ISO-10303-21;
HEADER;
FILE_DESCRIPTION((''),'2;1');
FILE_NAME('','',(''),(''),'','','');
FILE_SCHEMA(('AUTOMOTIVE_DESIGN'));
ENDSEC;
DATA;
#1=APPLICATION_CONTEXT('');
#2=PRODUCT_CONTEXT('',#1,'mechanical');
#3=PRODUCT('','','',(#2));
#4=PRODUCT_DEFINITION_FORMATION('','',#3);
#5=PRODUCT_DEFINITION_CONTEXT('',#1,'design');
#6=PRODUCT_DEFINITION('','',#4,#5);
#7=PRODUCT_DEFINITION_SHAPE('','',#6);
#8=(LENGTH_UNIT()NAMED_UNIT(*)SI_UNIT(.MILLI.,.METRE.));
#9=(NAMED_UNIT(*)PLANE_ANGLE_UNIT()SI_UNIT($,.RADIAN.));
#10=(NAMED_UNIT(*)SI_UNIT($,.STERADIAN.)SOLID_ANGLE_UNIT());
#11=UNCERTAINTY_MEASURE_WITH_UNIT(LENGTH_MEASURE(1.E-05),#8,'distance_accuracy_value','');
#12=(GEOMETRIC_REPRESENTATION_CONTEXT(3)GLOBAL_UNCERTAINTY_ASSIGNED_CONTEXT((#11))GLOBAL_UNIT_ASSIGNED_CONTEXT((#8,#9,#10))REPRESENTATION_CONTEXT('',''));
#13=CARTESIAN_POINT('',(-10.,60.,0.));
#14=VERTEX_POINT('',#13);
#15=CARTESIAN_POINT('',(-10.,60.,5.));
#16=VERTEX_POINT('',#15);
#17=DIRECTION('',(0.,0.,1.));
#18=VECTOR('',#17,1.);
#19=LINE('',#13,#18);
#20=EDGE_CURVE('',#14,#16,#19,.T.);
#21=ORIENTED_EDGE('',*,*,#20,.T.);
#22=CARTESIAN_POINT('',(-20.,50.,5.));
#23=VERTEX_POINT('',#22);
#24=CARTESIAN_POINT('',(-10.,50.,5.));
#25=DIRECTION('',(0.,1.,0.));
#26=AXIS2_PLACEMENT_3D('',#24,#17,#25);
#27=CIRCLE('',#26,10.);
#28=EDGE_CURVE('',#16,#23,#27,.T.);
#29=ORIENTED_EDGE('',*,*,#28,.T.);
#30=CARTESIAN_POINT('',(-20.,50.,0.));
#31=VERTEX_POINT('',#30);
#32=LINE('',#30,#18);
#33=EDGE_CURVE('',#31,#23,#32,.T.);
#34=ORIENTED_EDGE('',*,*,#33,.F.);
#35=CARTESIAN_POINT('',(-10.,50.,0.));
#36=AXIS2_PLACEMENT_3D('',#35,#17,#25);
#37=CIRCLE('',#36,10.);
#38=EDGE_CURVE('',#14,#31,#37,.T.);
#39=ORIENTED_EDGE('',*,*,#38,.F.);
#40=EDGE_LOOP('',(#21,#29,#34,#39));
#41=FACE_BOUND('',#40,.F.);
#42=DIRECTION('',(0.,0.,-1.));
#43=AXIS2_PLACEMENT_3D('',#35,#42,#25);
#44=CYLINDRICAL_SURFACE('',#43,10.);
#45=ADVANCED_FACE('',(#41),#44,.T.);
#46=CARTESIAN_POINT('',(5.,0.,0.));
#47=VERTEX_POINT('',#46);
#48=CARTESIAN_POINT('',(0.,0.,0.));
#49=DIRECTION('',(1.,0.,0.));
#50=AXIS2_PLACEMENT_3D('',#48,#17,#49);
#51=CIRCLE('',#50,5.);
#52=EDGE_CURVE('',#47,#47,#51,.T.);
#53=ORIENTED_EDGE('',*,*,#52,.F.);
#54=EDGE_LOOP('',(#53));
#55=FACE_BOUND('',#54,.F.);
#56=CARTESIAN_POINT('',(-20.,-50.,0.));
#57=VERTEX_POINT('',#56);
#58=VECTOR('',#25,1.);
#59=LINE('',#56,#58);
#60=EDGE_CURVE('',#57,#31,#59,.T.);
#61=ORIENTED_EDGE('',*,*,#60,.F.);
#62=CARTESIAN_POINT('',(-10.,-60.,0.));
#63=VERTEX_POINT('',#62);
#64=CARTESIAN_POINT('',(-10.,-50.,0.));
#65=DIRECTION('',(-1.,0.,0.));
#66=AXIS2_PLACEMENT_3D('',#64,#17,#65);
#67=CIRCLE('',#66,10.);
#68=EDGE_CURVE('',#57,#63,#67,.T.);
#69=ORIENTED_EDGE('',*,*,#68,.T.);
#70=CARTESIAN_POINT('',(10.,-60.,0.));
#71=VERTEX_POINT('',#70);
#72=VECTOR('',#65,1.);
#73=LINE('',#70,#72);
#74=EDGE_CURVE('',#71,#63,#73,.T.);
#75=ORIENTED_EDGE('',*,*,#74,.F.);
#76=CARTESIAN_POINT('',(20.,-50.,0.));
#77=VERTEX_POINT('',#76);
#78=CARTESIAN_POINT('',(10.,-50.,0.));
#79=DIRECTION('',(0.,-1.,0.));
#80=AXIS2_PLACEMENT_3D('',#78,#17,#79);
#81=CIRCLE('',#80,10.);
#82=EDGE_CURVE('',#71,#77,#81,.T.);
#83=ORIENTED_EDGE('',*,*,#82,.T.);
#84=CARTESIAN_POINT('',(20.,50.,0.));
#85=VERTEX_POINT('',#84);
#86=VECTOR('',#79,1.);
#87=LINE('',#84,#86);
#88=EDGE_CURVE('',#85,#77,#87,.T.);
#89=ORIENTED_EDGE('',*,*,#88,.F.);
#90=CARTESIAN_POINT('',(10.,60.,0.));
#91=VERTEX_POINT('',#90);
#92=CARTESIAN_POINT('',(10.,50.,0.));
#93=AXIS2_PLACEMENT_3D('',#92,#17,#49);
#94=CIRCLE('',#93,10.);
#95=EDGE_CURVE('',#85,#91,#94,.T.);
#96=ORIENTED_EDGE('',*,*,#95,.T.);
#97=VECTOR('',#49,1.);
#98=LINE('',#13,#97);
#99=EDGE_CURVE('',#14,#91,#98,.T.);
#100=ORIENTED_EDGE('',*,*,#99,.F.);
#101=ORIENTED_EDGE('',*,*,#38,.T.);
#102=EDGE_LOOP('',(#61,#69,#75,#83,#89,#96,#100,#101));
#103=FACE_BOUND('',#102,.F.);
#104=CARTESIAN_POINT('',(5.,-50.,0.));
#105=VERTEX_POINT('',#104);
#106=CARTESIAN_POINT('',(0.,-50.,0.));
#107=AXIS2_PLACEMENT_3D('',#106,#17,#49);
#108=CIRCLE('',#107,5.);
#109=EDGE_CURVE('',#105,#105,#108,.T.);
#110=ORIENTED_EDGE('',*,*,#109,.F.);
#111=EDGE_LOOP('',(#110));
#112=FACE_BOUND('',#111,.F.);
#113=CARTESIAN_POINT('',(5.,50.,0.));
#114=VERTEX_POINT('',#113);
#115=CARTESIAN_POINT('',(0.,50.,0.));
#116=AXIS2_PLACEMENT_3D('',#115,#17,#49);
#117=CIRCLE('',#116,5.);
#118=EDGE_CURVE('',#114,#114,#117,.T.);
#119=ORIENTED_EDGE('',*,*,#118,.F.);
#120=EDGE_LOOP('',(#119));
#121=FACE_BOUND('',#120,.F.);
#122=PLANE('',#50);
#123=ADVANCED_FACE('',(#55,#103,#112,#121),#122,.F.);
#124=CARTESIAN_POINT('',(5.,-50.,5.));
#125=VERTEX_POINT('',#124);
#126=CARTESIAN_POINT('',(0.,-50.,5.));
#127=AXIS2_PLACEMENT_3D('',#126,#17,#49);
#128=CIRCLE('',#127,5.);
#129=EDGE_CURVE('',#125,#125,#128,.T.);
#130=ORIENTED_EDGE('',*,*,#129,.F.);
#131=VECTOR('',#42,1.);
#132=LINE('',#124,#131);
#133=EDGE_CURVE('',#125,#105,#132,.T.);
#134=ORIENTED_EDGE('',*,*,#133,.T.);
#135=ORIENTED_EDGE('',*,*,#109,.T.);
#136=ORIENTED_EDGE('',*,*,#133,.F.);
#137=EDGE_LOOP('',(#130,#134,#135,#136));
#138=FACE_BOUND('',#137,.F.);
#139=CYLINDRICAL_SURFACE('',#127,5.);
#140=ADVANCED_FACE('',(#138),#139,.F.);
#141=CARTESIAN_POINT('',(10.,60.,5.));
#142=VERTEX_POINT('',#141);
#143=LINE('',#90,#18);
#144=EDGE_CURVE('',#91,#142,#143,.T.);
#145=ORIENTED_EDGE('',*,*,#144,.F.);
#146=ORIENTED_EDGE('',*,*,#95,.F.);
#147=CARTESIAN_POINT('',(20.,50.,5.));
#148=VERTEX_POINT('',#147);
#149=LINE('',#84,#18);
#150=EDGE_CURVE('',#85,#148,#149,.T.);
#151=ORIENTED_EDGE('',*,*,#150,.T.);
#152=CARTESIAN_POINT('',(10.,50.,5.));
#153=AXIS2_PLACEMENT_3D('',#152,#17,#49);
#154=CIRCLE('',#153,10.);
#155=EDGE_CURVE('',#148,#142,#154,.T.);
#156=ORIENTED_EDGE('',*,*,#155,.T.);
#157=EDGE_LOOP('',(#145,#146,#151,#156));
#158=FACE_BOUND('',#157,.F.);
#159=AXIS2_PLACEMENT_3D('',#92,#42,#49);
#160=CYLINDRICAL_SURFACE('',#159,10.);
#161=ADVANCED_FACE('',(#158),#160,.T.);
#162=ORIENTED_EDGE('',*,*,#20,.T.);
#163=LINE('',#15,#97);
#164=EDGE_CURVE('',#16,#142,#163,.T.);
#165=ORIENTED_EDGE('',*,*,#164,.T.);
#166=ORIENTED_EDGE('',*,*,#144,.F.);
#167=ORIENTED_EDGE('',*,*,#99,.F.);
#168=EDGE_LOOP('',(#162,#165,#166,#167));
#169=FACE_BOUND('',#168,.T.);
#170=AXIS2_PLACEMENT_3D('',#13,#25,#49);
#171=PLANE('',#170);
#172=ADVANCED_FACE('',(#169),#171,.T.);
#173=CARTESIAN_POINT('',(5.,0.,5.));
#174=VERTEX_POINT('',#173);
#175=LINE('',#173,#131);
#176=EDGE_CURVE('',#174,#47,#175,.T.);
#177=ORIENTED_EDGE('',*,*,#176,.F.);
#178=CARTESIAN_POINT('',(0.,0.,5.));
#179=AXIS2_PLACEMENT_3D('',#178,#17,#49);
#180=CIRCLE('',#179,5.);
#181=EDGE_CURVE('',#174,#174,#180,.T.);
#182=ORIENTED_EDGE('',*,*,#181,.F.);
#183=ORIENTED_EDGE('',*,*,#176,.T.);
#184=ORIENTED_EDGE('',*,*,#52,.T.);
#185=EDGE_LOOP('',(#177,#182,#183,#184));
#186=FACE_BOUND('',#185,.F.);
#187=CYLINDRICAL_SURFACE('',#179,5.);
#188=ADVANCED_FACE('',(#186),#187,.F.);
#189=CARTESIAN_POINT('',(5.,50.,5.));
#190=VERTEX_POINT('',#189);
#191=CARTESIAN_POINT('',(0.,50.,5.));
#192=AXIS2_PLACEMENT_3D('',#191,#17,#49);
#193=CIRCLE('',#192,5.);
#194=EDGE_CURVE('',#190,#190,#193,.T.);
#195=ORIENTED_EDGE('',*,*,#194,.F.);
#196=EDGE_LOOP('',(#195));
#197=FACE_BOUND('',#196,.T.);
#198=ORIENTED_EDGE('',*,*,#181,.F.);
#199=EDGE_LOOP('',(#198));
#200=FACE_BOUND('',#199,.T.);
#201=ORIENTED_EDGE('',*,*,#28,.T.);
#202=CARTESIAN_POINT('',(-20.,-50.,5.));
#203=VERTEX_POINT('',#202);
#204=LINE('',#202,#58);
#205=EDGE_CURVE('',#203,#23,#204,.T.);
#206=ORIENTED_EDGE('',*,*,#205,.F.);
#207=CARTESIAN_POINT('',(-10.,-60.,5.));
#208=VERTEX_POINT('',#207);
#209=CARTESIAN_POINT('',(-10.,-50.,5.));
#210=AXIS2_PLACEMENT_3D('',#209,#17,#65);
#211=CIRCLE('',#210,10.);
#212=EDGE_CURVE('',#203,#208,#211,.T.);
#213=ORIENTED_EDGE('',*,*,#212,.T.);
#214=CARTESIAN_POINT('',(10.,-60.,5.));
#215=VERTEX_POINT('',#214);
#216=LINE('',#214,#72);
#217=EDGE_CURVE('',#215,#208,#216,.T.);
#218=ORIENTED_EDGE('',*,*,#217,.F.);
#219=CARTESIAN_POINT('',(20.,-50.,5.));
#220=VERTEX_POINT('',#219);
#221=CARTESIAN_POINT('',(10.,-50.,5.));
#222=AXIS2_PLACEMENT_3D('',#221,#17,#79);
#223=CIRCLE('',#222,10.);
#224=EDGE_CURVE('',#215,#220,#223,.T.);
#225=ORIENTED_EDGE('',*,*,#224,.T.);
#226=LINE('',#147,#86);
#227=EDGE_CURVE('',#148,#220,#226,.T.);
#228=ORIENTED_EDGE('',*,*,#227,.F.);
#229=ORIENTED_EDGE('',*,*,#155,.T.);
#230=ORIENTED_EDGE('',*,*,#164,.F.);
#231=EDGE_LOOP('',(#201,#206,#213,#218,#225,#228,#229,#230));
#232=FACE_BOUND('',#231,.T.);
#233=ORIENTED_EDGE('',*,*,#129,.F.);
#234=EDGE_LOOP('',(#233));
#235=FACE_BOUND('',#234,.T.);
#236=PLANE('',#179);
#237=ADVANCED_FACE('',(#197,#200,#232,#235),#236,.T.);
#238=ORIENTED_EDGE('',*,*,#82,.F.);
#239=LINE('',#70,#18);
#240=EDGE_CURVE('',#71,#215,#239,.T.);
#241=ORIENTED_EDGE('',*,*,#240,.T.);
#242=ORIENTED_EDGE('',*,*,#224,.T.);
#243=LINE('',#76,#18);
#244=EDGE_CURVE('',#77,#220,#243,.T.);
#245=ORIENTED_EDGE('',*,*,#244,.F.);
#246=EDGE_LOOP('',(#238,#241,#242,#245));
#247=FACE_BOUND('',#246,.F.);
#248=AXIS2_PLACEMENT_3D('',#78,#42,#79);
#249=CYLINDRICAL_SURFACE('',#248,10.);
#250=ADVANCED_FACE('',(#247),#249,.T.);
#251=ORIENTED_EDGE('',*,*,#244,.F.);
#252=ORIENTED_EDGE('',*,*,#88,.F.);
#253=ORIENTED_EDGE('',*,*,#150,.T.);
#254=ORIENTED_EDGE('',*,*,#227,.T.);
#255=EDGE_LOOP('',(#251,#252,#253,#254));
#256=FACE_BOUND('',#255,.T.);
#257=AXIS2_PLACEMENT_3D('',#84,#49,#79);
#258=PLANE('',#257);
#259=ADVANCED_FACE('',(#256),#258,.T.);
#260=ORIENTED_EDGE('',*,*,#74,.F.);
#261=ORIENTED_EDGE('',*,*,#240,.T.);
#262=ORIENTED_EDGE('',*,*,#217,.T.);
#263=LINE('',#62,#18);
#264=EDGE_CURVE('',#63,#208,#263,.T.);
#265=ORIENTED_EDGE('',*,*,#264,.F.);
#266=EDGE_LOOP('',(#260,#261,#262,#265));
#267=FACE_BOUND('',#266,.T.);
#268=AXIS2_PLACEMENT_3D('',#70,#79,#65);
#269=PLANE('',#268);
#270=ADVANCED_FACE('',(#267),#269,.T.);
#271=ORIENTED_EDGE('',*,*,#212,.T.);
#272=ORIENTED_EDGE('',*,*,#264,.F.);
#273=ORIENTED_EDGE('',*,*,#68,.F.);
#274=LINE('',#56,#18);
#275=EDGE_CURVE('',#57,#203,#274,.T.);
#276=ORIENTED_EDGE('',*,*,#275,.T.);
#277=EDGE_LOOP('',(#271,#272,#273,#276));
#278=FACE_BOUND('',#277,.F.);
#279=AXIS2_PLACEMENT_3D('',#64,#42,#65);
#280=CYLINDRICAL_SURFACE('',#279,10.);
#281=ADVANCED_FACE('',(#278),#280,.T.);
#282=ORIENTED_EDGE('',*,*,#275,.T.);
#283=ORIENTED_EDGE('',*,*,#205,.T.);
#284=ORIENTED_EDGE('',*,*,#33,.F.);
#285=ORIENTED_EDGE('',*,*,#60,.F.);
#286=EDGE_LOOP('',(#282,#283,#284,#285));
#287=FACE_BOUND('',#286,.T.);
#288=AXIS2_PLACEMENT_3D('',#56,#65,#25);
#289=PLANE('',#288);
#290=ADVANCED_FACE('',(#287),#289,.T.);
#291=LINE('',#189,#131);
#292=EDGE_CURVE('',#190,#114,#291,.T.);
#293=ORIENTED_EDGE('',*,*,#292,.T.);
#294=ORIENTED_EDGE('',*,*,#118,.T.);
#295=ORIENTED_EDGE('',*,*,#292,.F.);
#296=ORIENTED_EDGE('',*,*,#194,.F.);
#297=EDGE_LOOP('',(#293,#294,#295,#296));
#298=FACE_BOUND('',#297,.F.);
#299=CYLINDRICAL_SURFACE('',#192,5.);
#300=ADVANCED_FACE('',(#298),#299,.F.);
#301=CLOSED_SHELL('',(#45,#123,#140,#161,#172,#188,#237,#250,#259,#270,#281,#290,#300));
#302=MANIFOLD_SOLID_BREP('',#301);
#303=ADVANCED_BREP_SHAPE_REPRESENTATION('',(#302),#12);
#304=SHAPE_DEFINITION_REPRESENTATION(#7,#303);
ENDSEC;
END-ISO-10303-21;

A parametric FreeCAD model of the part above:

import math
import FreeCAD as App
import Part
import Sketcher

doc = App.newDocument("Part")
body = doc.addObject("PartDesign::Body", "Body")

sketch1 = body.newObject("Sketcher::SketchObject", "Sketch")
sketch1.AttachmentSupport = (doc.getObject("XY_Plane"), [""])
sketch1.MapMode = "FlatFace"
sketch1.addGeometry([
    Part.LineSegment(App.Vector(10, 60, 0), App.Vector(-10, 60, 0)),
    Part.ArcOfCircle(Part.Circle(App.Vector(-10, 50, 0), App.Vector(0, 0, 1), 10), math.radians(90), math.radians(180)),
    Part.LineSegment(App.Vector(-20, 50, 0), App.Vector(-20, -50, 0)),
    Part.ArcOfCircle(Part.Circle(App.Vector(-10, -50, 0), App.Vector(0, 0, 1), 10), math.radians(180), math.radians(270)),
    Part.LineSegment(App.Vector(-10, -60, 0), App.Vector(10, -60, 0)),
    Part.ArcOfCircle(Part.Circle(App.Vector(10, -50, 0), App.Vector(0, 0, 1), 10), math.radians(-90), math.radians(0)),
    Part.LineSegment(App.Vector(20, -50, 0), App.Vector(20, 50, 0)),
    Part.ArcOfCircle(Part.Circle(App.Vector(10, 50, 0), App.Vector(0, 0, 1), 10), math.radians(0), math.radians(90)),
], False)
sketch1.addConstraint([
    Sketcher.Constraint("Tangent", 0, 2, 1, 1),
    Sketcher.Constraint("Tangent", 1, 2, 2, 1),
    Sketcher.Constraint("Tangent", 2, 2, 3, 1),
    Sketcher.Constraint("Tangent", 3, 2, 4, 1),
    Sketcher.Constraint("Tangent", 4, 2, 5, 1),
    Sketcher.Constraint("Tangent", 5, 2, 6, 1),
    Sketcher.Constraint("Tangent", 6, 2, 7, 1),
    Sketcher.Constraint("Tangent", 7, 2, 0, 1),
    Sketcher.Constraint("Horizontal", 0),
    Sketcher.Constraint("Vertical", 2),
    Sketcher.Constraint("Horizontal", 4),
    Sketcher.Constraint("Vertical", 6),
    Sketcher.Constraint("Equal", 1, 3),
    Sketcher.Constraint("Equal", 3, 5),
    Sketcher.Constraint("Equal", 5, 7),
    Sketcher.Constraint("Symmetric", 1, 3, 5, 3, -1, 1),
    Sketcher.Constraint("Radius", 1, 10.0),
    Sketcher.Constraint("DistanceX", 1, 3, -1, 1, 10.0),
    Sketcher.Constraint("DistanceY", 2, 2, 2, 1, 100.0),
])
pad1 = body.newObject("PartDesign::Pad", "Pad")
pad1.Profile = sketch1
pad1.Length = 5

sketch2 = body.newObject("Sketcher::SketchObject", "Sketch001")
sketch2.AttachmentSupport = (doc.getObject("XY_Plane"), [""])
sketch2.MapMode = "FlatFace"
sketch2.AttachmentOffset = App.Placement(App.Vector(0, 0, 5), App.Rotation())
sketch2.addGeometry([
    Part.Circle(App.Vector(0, 50, 0), App.Vector(0, 0, 1), 5),
    Part.Circle(App.Vector(0, -50, 0), App.Vector(0, 0, 1), 5),
    Part.Circle(App.Vector(0, 0, 0), App.Vector(0, 0, 1), 5),
], False)
sketch2.addConstraint([
    Sketcher.Constraint("Coincident", 2, 3, -1, 1),
    Sketcher.Constraint("Equal", 0, 1),
    Sketcher.Constraint("Equal", 1, 2),
    Sketcher.Constraint("Symmetric", 0, 3, 1, 3, -1, 1),
    Sketcher.Constraint("PointOnObject", 0, 3, -2),
    Sketcher.Constraint("Diameter", 0, 10.0),
    Sketcher.Constraint("DistanceY", -1, 1, 0, 3, 50.0),
])
pocket1 = body.newObject("PartDesign::Pocket", "Pocket")
pocket1.Profile = sketch2
pocket1.Length = 5

doc.recompute()
